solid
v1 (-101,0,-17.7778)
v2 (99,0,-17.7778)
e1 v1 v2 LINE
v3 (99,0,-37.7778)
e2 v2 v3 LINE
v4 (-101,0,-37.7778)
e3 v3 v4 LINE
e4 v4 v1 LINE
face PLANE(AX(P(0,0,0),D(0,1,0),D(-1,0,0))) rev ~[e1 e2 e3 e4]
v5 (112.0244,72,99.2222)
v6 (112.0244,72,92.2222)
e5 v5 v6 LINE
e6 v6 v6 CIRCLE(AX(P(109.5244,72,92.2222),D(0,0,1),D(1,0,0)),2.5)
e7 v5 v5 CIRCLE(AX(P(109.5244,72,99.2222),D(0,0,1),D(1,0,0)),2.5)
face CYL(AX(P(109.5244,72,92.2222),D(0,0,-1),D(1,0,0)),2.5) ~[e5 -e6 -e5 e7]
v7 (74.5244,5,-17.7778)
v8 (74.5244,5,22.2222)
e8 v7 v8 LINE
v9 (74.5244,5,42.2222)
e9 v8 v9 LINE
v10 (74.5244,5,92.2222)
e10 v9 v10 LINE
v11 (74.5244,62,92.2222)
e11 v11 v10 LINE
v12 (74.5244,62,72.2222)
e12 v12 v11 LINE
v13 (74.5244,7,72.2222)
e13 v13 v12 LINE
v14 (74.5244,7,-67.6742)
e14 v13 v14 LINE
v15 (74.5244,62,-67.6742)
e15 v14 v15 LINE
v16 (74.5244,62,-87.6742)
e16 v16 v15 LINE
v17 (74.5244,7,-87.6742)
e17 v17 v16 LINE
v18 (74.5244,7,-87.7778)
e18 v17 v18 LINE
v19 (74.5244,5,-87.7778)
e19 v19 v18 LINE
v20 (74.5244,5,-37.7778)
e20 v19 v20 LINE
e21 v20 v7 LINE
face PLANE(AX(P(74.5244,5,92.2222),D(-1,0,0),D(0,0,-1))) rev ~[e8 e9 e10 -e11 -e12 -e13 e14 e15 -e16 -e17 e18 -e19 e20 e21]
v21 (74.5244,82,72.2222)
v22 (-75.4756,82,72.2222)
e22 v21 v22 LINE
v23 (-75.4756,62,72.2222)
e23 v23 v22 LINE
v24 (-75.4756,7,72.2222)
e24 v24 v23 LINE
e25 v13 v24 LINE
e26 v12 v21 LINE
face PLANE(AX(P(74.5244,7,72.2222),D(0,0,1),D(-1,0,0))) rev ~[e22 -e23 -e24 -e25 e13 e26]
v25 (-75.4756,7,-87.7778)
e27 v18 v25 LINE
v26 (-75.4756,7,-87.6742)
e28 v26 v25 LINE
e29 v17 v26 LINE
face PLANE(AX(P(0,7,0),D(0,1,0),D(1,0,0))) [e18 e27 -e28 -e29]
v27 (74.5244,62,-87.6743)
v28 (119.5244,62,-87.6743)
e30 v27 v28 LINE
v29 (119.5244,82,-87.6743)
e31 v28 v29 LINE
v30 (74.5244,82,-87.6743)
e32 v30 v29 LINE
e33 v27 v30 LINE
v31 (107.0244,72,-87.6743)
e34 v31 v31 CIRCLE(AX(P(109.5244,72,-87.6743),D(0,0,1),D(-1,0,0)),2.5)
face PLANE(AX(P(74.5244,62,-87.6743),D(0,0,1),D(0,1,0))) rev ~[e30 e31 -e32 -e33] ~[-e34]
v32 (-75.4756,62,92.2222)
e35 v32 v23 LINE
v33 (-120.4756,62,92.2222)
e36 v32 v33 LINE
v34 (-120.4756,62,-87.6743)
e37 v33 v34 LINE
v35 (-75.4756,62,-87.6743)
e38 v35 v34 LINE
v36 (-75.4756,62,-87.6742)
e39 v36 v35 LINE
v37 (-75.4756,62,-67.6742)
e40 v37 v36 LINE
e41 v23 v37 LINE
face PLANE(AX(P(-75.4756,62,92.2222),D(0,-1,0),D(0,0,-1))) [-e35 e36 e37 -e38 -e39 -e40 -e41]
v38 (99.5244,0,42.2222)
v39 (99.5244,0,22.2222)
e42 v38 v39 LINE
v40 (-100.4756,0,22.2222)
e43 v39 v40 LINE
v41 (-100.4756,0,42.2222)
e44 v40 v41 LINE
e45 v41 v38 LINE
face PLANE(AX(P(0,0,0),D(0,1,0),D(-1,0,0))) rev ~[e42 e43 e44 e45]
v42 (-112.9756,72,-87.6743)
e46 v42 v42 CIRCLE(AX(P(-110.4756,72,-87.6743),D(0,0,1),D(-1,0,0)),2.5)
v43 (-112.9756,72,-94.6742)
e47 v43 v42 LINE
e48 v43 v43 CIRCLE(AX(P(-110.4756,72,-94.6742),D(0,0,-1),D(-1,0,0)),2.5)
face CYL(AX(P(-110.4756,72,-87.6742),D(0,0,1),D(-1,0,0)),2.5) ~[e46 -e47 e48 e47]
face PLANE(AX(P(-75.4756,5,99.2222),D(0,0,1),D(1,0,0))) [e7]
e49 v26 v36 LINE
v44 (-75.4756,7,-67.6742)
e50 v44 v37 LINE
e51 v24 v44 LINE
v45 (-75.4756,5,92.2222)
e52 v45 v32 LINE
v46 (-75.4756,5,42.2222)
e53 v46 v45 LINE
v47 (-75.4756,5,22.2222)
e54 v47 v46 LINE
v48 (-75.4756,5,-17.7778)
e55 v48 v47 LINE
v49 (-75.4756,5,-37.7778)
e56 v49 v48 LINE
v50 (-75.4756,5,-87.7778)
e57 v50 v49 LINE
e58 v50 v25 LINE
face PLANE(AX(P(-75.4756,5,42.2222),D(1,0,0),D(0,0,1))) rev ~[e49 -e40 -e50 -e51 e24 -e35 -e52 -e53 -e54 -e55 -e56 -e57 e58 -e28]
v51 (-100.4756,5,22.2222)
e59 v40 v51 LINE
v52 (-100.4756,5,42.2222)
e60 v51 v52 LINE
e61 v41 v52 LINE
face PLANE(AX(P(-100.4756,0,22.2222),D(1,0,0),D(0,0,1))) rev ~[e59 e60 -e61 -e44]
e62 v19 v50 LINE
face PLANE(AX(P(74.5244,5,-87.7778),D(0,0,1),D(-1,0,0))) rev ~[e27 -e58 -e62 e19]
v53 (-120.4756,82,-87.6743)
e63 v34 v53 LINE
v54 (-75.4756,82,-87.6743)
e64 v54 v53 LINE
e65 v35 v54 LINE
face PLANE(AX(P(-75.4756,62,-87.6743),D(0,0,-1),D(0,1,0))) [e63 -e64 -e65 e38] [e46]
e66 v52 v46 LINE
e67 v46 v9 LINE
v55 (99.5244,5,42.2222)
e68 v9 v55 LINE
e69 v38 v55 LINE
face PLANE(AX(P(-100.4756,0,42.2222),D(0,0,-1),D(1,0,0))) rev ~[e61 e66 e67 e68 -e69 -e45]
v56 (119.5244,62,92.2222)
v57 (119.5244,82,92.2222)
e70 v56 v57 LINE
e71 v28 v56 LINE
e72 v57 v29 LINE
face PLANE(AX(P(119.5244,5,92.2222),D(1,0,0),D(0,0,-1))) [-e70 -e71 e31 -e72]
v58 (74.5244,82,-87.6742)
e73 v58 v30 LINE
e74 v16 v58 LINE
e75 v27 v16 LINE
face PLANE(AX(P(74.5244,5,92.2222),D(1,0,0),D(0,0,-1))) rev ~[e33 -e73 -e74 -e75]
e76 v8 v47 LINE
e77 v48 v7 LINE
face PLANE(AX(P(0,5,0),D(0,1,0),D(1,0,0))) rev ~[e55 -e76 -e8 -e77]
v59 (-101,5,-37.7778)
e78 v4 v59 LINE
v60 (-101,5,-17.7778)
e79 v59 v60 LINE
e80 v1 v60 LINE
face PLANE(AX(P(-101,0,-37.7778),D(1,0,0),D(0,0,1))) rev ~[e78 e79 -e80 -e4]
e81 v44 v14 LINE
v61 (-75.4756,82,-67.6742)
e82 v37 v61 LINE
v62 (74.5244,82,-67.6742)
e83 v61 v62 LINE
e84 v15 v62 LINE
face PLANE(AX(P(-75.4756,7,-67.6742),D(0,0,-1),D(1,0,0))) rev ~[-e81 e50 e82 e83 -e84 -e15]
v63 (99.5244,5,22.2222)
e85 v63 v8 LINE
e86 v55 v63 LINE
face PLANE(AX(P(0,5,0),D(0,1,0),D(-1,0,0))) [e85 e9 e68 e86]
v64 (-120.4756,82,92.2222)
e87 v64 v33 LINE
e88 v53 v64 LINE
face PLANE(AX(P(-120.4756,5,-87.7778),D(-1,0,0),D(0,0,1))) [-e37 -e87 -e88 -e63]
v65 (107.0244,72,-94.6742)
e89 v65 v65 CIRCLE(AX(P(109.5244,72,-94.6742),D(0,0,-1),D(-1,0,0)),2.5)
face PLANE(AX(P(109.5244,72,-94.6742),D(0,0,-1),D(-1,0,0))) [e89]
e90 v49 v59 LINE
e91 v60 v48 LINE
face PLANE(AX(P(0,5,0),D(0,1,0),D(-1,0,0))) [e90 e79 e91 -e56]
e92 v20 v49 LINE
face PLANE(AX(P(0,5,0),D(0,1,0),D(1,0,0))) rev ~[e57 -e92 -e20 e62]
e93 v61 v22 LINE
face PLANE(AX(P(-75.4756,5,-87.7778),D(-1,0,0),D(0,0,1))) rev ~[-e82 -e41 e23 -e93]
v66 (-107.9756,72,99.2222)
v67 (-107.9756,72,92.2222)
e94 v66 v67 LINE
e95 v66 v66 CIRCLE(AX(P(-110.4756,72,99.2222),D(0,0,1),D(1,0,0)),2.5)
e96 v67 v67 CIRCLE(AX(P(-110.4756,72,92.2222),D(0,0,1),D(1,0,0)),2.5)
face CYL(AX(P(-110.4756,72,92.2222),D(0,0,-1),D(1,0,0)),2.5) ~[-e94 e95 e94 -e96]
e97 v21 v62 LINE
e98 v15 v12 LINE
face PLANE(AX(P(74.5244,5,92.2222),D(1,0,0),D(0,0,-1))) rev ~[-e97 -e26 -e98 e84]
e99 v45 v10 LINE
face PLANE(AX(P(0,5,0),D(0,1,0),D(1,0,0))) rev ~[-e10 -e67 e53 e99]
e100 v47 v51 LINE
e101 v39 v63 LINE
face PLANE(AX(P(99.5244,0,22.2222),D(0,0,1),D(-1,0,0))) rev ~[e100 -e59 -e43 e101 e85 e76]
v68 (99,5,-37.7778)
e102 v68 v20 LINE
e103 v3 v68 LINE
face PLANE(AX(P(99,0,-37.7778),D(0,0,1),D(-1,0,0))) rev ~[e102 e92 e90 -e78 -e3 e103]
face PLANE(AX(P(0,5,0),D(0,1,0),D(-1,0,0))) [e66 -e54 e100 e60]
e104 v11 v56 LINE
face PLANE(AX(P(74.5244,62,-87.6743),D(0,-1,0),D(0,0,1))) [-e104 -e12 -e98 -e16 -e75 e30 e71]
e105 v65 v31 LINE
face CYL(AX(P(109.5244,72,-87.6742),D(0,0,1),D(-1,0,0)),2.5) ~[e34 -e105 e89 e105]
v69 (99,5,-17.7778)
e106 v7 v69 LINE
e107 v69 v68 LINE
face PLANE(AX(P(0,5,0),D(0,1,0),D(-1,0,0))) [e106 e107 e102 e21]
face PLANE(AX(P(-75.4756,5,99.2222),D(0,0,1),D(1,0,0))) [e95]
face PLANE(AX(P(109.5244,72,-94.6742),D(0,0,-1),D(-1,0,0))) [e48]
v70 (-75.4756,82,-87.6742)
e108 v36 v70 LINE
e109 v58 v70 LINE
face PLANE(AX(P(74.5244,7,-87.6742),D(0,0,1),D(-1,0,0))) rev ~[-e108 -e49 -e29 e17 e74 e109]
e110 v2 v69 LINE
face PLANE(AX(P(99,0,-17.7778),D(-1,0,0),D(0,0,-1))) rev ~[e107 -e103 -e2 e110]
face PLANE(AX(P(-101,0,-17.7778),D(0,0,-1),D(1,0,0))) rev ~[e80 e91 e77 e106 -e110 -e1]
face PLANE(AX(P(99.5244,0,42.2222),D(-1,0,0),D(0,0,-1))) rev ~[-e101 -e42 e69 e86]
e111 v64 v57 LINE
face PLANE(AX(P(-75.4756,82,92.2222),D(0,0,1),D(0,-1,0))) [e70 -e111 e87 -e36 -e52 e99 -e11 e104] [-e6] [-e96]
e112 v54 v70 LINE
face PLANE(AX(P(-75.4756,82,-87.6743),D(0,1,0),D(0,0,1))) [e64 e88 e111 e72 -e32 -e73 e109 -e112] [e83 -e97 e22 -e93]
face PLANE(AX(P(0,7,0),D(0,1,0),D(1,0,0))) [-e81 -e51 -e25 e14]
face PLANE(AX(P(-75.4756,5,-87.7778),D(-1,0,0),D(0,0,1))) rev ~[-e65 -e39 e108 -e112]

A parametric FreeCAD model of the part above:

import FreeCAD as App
import Part
import Sketcher

doc = App.newDocument("Part")
body = doc.addObject("PartDesign::Body", "Body")
body.AllowCompound = True

# Sketch on XZ plane
sketch1 = body.newObject("Sketcher::SketchObject", "Sketch")
sketch1.AttachmentSupport = (doc.getObject("XZ_Plane"), [""])
sketch1.MapMode = "FlatFace"
sketch1.addGeometry([
    Part.LineSegment(App.Vector(-100.4756, 22.2222, 0), App.Vector(-100.4756, 42.2222, 0)),  # 0
    Part.LineSegment(App.Vector(-100.4756, 42.2222, 0), App.Vector(99.5244, 42.2222, 0)),  # 1
    Part.LineSegment(App.Vector(99.5244, 42.2222, 0), App.Vector(99.5244, 22.2222, 0)),  # 2
    Part.LineSegment(App.Vector(99.5244, 22.2222, 0), App.Vector(-100.4756, 22.2222, 0)),  # 3
    Part.LineSegment(App.Vector(-101, -37.7778, 0), App.Vector(-101, -17.7778, 0)),  # 4
    Part.LineSegment(App.Vector(-101, -17.7778, 0), App.Vector(99, -17.7778, 0)),  # 5
    Part.LineSegment(App.Vector(99, -17.7778, 0), App.Vector(99, -37.7778, 0)),  # 6
    Part.LineSegment(App.Vector(99, -37.7778, 0), App.Vector(-101, -37.7778, 0)),  # 7
], False)
sketch1.addConstraint([
    Sketcher.Constraint("Coincident", 0, 2, 1, 1),
    Sketcher.Constraint("Coincident", 1, 2, 2, 1),
    Sketcher.Constraint("Coincident", 2, 2, 3, 1),
    Sketcher.Constraint("Coincident", 3, 2, 0, 1),
    Sketcher.Constraint("Coincident", 4, 2, 5, 1),
    Sketcher.Constraint("Coincident", 5, 2, 6, 1),
    Sketcher.Constraint("Coincident", 6, 2, 7, 1),
    Sketcher.Constraint("Coincident", 7, 2, 4, 1),
    Sketcher.Constraint("Vertical", 0),
    Sketcher.Constraint("Horizontal", 1),
    Sketcher.Constraint("Vertical", 2),
    Sketcher.Constraint("Horizontal", 3),
    Sketcher.Constraint("Vertical", 4),
    Sketcher.Constraint("Horizontal", 5),
    Sketcher.Constraint("Vertical", 6),
    Sketcher.Constraint("Horizontal", 7),
    Sketcher.Constraint("Equal", 3, 5),
    Sketcher.Constraint("Equal", 2, 4),
    Sketcher.Constraint("DistanceX", 1, 1, 1, 2, 200.0),
    Sketcher.Constraint("DistanceY", 0, 1, 0, 2, 20.0),
    Sketcher.Constraint("DistanceY", 4, 2, 3, 2, 40.0),
    Sketcher.Constraint("DistanceX", 4, 2, -1, 1, 101.0),
    Sketcher.Constraint("DistanceX", 0, 2, -1, 1, 100.4756),
    Sketcher.Constraint("DistanceY", -1, 1, 0, 2, 42.2222),
])
pad1 = body.newObject("PartDesign::Pad", "Pad")
pad1.Profile = sketch1
pad1.Length = 5
pad1.Reversed = True

# Sketch on XZ plane
sketch2 = body.newObject("Sketcher::SketchObject", "Sketch001")
sketch2.AttachmentSupport = (doc.getObject("XZ_Plane"), [""])
sketch2.MapMode = "FlatFace"
sketch2.AttachmentOffset = App.Placement(App.Vector(0, 0, -5), App.Rotation())
sketch2.addGeometry([
    Part.LineSegment(App.Vector(-75.4756, 92.2222, 0), App.Vector(74.5244, 92.2222, 0)),
    Part.LineSegment(App.Vector(74.5244, 92.2222, 0), App.Vector(74.5244, -87.7778, 0)),
    Part.LineSegment(App.Vector(74.5244, -87.7778, 0), App.Vector(-75.4756, -87.7778, 0)),
    Part.LineSegment(App.Vector(-75.4756, -87.7778, 0), App.Vector(-75.4756, 92.2222, 0)),
], False)
sketch2.addConstraint([
    Sketcher.Constraint("Coincident", 0, 2, 1, 1),
    Sketcher.Constraint("Coincident", 1, 2, 2, 1),
    Sketcher.Constraint("Coincident", 2, 2, 3, 1),
    Sketcher.Constraint("Coincident", 3, 2, 0, 1),
    Sketcher.Constraint("Horizontal", 0),
    Sketcher.Constraint("Vertical", 1),
    Sketcher.Constraint("Horizontal", 2),
    Sketcher.Constraint("Vertical", 3),
    Sketcher.Constraint("DistanceX", 0, 1, 0, 2, 150.0),
    Sketcher.Constraint("DistanceY", 1, 2, 1, 1, 180.0),
    Sketcher.Constraint("DistanceX", -1, 1, 0, 2, 74.5244),
    Sketcher.Constraint("DistanceY", -1, 1, 0, 2, 92.2222),
])
pad2 = body.newObject("PartDesign::Pad", "Pad001")
pad2.Profile = sketch2
pad2.Length = 2
pad2.Reversed = True

# Sketch on XZ plane
sketch3 = body.newObject("Sketcher::SketchObject", "Sketch002")
sketch3.AttachmentSupport = (doc.getObject("XZ_Plane"), [""])
sketch3.MapMode = "FlatFace"
sketch3.AttachmentOffset = App.Placement(App.Vector(0, 0, -7), App.Rotation())
sketch3.addGeometry([
    Part.LineSegment(App.Vector(74.5244, -87.6742, 0), App.Vector(-75.4756, -87.6742, 0)),  # 0
    Part.LineSegment(App.Vector(-75.4756, -87.6742, 0), App.Vector(-75.4756, -67.6742, 0)),  # 1
    Part.LineSegment(App.Vector(-75.4756, -67.6742, 0), App.Vector(74.5244, -67.6742, 0)),  # 2
    Part.LineSegment(App.Vector(74.5244, -67.6742, 0), App.Vector(74.5244, -87.6742, 0)),  # 3
    Part.LineSegment(App.Vector(74.5244, 72.2222, 0), App.Vector(-75.4756, 72.2222, 0)),  # 4
    Part.LineSegment(App.Vector(-75.4756, 72.2222, 0), App.Vector(-75.4756, 92.2222, 0)),  # 5
    Part.LineSegment(App.Vector(-75.4756, 92.2222, 0), App.Vector(74.5244, 92.2222, 0)),  # 6
    Part.LineSegment(App.Vector(74.5244, 92.2222, 0), App.Vector(74.5244, 72.2222, 0)),  # 7
], False)
sketch3.addConstraint([
    Sketcher.Constraint("Coincident", 0, 2, 1, 1),
    Sketcher.Constraint("Coincident", 1, 2, 2, 1),
    Sketcher.Constraint("Coincident", 2, 2, 3, 1),
    Sketcher.Constraint("Coincident", 3, 2, 0, 1),
    Sketcher.Constraint("Coincident", 4, 2, 5, 1),
    Sketcher.Constraint("Coincident", 5, 2, 6, 1),
    Sketcher.Constraint("Coincident", 6, 2, 7, 1),
    Sketcher.Constraint("Coincident", 7, 2, 4, 1),
    Sketcher.Constraint("Horizontal", 0),
    Sketcher.Constraint("Vertical", 1),
    Sketcher.Constraint("Horizontal", 2),
    Sketcher.Constraint("Vertical", 3),
    Sketcher.Constraint("Horizontal", 4),
    Sketcher.Constraint("Vertical", 5),
    Sketcher.Constraint("Horizontal", 6),
    Sketcher.Constraint("Vertical", 7),
    Sketcher.Constraint("Vertical", 1, 2, 4, 2),
    Sketcher.Constraint("Vertical", 3, 2, 6, 2),
    Sketcher.Constraint("Equal", 3, 5),
    Sketcher.Constraint("DistanceY", 1, 1, 1, 2, 20.0),
    Sketcher.Constraint("DistanceX", 0, 2, 0, 1, 150.0),
    Sketcher.Constraint("DistanceX", 0, 2, -1, 1, 75.4756),
    Sketcher.Constraint("DistanceY", 0, 2, -1, 1, 87.6742),
    Sketcher.Constraint("DistanceY", -1, 1, 4, 2, 72.2222),
])
pad3 = body.newObject("PartDesign::Pad", "Pad002")
pad3.Profile = sketch3
pad3.Length = 75
pad3.Reversed = True

# Sketch on YZ plane
sketch4 = body.newObject("Sketcher::SketchObject", "Sketch003")
sketch4.AttachmentSupport = (doc.getObject("YZ_Plane"), [""])
sketch4.MapMode = "FlatFace"
sketch4.AttachmentOffset = App.Placement(App.Vector(0, 0, 74.5244), App.Rotation())
sketch4.addGeometry([
    Part.LineSegment(App.Vector(82, -87.6743, 0), App.Vector(82, 92.2222, 0)),
    Part.LineSegment(App.Vector(82, 92.2222, 0), App.Vector(62, 92.2222, 0)),
    Part.LineSegment(App.Vector(62, 92.2222, 0), App.Vector(62, -87.6743, 0)),
    Part.LineSegment(App.Vector(62, -87.6743, 0), App.Vector(82, -87.6743, 0)),
], False)
sketch4.addConstraint([
    Sketcher.Constraint("Coincident", 0, 2, 1, 1),
    Sketcher.Constraint("Coincident", 1, 2, 2, 1),
    Sketcher.Constraint("Coincident", 2, 2, 3, 1),
    Sketcher.Constraint("Coincident", 3, 2, 0, 1),
    Sketcher.Constraint("Vertical", 0),
    Sketcher.Constraint("Horizontal", 1),
    Sketcher.Constraint("Vertical", 2),
    Sketcher.Constraint("Horizontal", 3),
    Sketcher.Constraint("DistanceX", 1, 2, 1, 1, 20.0),
    Sketcher.Constraint("DistanceX", -1, 1, 0, 2, 82.0),
    Sketcher.Constraint("DistanceY", 0, 1, 0, 2, 179.8965),
    Sketcher.Constraint("DistanceY", -1, 1, 0, 2, 92.2222),
])
pad4 = body.newObject("PartDesign::Pad", "Pad003")
pad4.Profile = sketch4
pad4.Length = 45

# Sketch on YZ plane
sketch5 = body.newObject("Sketcher::SketchObject", "Sketch004")
sketch5.AttachmentSupport = (doc.getObject("YZ_Plane"), [""])
sketch5.MapMode = "FlatFace"
sketch5.AttachmentOffset = App.Placement(App.Vector(0, 0, -75.4756), App.Rotation())
sketch5.addGeometry([
    Part.LineSegment(App.Vector(82, -87.6743, 0), App.Vector(62, -87.6743, 0)),
    Part.LineSegment(App.Vector(62, -87.6743, 0), App.Vector(62, 92.2222, 0)),
    Part.LineSegment(App.Vector(62, 92.2222, 0), App.Vector(82, 92.2222, 0)),
    Part.LineSegment(App.Vector(82, 92.2222, 0), App.Vector(82, -87.6743, 0)),
], False)
sketch5.addConstraint([
    Sketcher.Constraint("Coincident", 0, 2, 1, 1),
    Sketcher.Constraint("Coincident", 1, 2, 2, 1),
    Sketcher.Constraint("Coincident", 2, 2, 3, 1),
    Sketcher.Constraint("Coincident", 3, 2, 0, 1),
    Sketcher.Constraint("Horizontal", 0),
    Sketcher.Constraint("Vertical", 1),
    Sketcher.Constraint("Horizontal", 2),
    Sketcher.Constraint("Vertical", 3),
    Sketcher.Constraint("DistanceX", 0, 2, 0, 1, 20.0),
    Sketcher.Constraint("DistanceX", -1, 1, 0, 2, 62.0),
    Sketcher.Constraint("DistanceY", 1, 1, 1, 2, 179.8965),
    Sketcher.Constraint("DistanceY", 0, 2, -1, 1, 87.6743),
])
pad5 = body.newObject("PartDesign::Pad", "Pad004")
pad5.Profile = sketch5
pad5.Length = 45
pad5.Reversed = True

# Sketch on XY plane
sketch6 = body.newObject("Sketcher::SketchObject", "Sketch005")
sketch6.AttachmentSupport = (doc.getObject("XY_Plane"), [""])
sketch6.MapMode = "FlatFace"
sketch6.AttachmentOffset = App.Placement(App.Vector(0, 0, -87.6742), App.Rotation())
sketch6.addGeometry([
    Part.Circle(App.Vector(-110.4756, 72, 0), App.Vector(0, 0, 1), 2.5),
    Part.Circle(App.Vector(109.5244, 72, 0), App.Vector(0, 0, 1), 2.5),
], False)
sketch6.addConstraint([
    Sketcher.Constraint("Equal", 0, 1),
    Sketcher.Constraint("Horizontal", 0, 3, 1, 3),
    Sketcher.Constraint("Diameter", 0, 5.0),
    Sketcher.Constraint("DistanceY", -1, 1, 0, 3, 72.0),
    Sketcher.Constraint("DistanceX", 0, 3, 1, 3, 220.0),
    Sketcher.Constraint("DistanceX", 0, 3, -1, 1, 110.4756),
])
pad6 = body.newObject("PartDesign::Pad", "Pad005")
pad6.Profile = sketch6
pad6.Length = 3
pad6.Reversed = True

# Sketch on XY plane
sketch7 = body.newObject("Sketcher::SketchObject", "Sketch006")
sketch7.AttachmentSupport = (doc.getObject("XY_Plane"), [""])
sketch7.MapMode = "FlatFace"
sketch7.AttachmentOffset = App.Placement(App.Vector(0, 0, 92.2222), App.Rotation())
sketch7.addGeometry([
    Part.Circle(App.Vector(-110.4756, 72, 0), App.Vector(0, 0, 1), 2.5),
    Part.Circle(App.Vector(109.5244, 72, 0), App.Vector(0, 0, 1), 2.5),
], False)
sketch7.addConstraint([
    Sketcher.Constraint("Equal", 0, 1),
    Sketcher.Constraint("Horizontal", 0, 3, 1, 3),
    Sketcher.Constraint("Diameter", 0, 5.0),
    Sketcher.Constraint("DistanceY", -1, 1, 0, 3, 72.0),
    Sketcher.Constraint("DistanceX", 0, 3, 1, 3, 220.0),
    Sketcher.Constraint("DistanceX", 0, 3, -1, 1, 110.4756),
])
pad7 = body.newObject("PartDesign::Pad", "Pad006")
pad7.Profile = sketch7
pad7.Length = 3

# Sketch on XY plane
sketch8 = body.newObject("Sketcher::SketchObject", "Sketch007")
sketch8.AttachmentSupport = (doc.getObject("XY_Plane"), [""])
sketch8.MapMode = "FlatFace"
sketch8.AttachmentOffset = App.Placement(App.Vector(0, 0, -90.6742), App.Rotation())
sketch8.addGeometry([
    Part.Circle(App.Vector(109.5244, 72, 0), App.Vector(0, 0, 1), 2.5),
    Part.Circle(App.Vector(-110.4756, 72, 0), App.Vector(0, 0, 1), 2.5),
], False)
sketch8.addConstraint([
    Sketcher.Constraint("Equal", 0, 1),
    Sketcher.Constraint("Horizontal", 0, 3, 1, 3),
    Sketcher.Constraint("Diameter", 0, 5.0),
    Sketcher.Constraint("DistanceY", -1, 1, 0, 3, 72.0),
    Sketcher.Constraint("DistanceX", 1, 3, 0, 3, 220.0),
    Sketcher.Constraint("DistanceX", -1, 1, 0, 3, 109.5244),
])
pad8 = body.newObject("PartDesign::Pad", "Pad007")
pad8.Profile = sketch8
pad8.Length = 4
pad8.Reversed = True

# Sketch on XY plane
sketch9 = body.newObject("Sketcher::SketchObject", "Sketch008")
sketch9.AttachmentSupport = (doc.getObject("XY_Plane"), [""])
sketch9.MapMode = "FlatFace"
sketch9.AttachmentOffset = App.Placement(App.Vector(0, 0, 92.2222), App.Rotation())
sketch9.addGeometry([
    Part.Circle(App.Vector(-110.4756, 72, 0), App.Vector(0, 0, 1), 2.5),
    Part.Circle(App.Vector(109.5244, 72, 0), App.Vector(0, 0, 1), 2.5),
], False)
sketch9.addConstraint([
    Sketcher.Constraint("Equal", 0, 1),
    Sketcher.Constraint("Horizontal", 0, 3, 1, 3),
    Sketcher.Constraint("Diameter", 0, 5.0),
    Sketcher.Constraint("DistanceY", -1, 1, 0, 3, 72.0),
    Sketcher.Constraint("DistanceX", 0, 3, 1, 3, 220.0),
    Sketcher.Constraint("DistanceX", 0, 3, -1, 1, 110.4756),
])
pad9 = body.newObject("PartDesign::Pad", "Pad008")
pad9.Profile = sketch9
pad9.Length = 7

doc.recompute()
